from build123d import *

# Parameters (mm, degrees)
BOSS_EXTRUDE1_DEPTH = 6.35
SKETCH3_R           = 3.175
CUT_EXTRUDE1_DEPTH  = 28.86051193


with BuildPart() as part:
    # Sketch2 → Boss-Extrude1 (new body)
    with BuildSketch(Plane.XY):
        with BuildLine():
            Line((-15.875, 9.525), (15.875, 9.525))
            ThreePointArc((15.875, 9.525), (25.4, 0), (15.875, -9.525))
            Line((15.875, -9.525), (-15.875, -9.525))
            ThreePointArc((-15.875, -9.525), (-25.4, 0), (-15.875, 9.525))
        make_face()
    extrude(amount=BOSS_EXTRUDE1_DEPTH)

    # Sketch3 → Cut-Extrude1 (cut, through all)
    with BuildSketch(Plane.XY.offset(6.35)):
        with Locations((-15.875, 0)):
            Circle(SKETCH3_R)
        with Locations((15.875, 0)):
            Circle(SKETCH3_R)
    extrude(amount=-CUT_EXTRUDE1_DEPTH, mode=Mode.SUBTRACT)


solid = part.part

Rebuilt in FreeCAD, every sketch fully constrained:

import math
import FreeCAD as App
import Part
import Sketcher
from FreeCAD import Vector
Q = App.Units.Quantity

doc = App.newDocument("Part")
params = doc.addObject("Spreadsheet::Sheet", "Params")
for row, (alias, value) in enumerate([
    ("sketch1_radius", "0.375 in"),
    ("sketch1_width", "1.25 in"),
    ("pad1_length", "0.25 in"),
    ("sketch2_diameter", "0.25 in"),
], start=1):
    params.set(f"A{row}", alias)
    params.set(f"B{row}", "=" + value)
    params.setAlias(f"B{row}", alias)

body = doc.addObject("PartDesign::Body", "Body")

sketch1 = doc.addObject("Sketcher::SketchObject", "Sketch")
body.addObject(sketch1)
sketch1.AttachmentSupport = (doc.XY_Plane, [""])
sketch1.MapMode = "FlatFace"
sketch1.addGeometry([
    Part.LineSegment(Vector(16, 10, 0), Vector(-16, 10, 0)),
    Part.ArcOfCircle(Part.Circle(Vector(-16, 0, 0), Vector(0, 0, 1), 10), math.radians(90), math.radians(270)),
    Part.LineSegment(Vector(-16, -10, 0), Vector(16, -10, 0)),
    Part.ArcOfCircle(Part.Circle(Vector(16, 0, 0), Vector(0, 0, 1), 10), math.radians(-90), math.radians(90)),
], False)
sketch1.addConstraint([
    Sketcher.Constraint("Tangent", 0, 2, 1, 1),
    Sketcher.Constraint("Tangent", 1, 2, 2, 1),
    Sketcher.Constraint("Tangent", 2, 2, 3, 1),
    Sketcher.Constraint("Tangent", 3, 2, 0, 1),
    Sketcher.Constraint("Horizontal", 0),
    Sketcher.Constraint("Horizontal", 2),
    Sketcher.Constraint("Symmetric", 1, 3, 3, 3, -1, 1),
    Sketcher.Constraint("Radius", 1, Q("0.375 in")),
    Sketcher.Constraint("DistanceX", 0, 2, 0, 1, Q("1.25 in")),
])
sketch1.setExpression("Constraints[7]", "Params.sketch1_radius")
sketch1.setExpression("Constraints[8]", "Params.sketch1_width")
pad1 = doc.addObject("PartDesign::Pad", "Pad")
body.addObject(pad1)
pad1.Profile = sketch1
pad1.setExpression("Length", "Params.pad1_length")

sketch2 = doc.addObject("Sketcher::SketchObject", "Sketch001")
body.addObject(sketch2)
sketch2.AttachmentSupport = (doc.XY_Plane, [""])
sketch2.MapMode = "FlatFace"
sketch2.AttachmentOffset = App.Placement(Vector(0, 0, 0.25 * 25.4), App.Rotation())
sketch2.addGeometry([
    Part.Circle(Vector(-15.9, 0, 0), Vector(0, 0, 1), 3.2),
    Part.Circle(Vector(15.9, 0, 0), Vector(0, 0, 1), 3.2),
], False)
sketch2.addConstraint([
    Sketcher.Constraint("Equal", 0, 1),
    Sketcher.Constraint("Symmetric", 0, 3, 1, 3, -1, 1),
    Sketcher.Constraint("PointOnObject", 0, 3, -1),
    Sketcher.Constraint("Diameter", 0, Q("0.25 in")),
    Sketcher.Constraint("DistanceX", 0, 3, 1, 3, Q("1.25 in")),
])
sketch2.setExpression("Constraints[3]", "Params.sketch2_diameter")
pocket1 = doc.addObject("PartDesign::Pocket", "Pocket")
body.addObject(pocket1)
pocket1.Profile = sketch2
pocket1.Type = "ThroughAll"

doc.recompute()
